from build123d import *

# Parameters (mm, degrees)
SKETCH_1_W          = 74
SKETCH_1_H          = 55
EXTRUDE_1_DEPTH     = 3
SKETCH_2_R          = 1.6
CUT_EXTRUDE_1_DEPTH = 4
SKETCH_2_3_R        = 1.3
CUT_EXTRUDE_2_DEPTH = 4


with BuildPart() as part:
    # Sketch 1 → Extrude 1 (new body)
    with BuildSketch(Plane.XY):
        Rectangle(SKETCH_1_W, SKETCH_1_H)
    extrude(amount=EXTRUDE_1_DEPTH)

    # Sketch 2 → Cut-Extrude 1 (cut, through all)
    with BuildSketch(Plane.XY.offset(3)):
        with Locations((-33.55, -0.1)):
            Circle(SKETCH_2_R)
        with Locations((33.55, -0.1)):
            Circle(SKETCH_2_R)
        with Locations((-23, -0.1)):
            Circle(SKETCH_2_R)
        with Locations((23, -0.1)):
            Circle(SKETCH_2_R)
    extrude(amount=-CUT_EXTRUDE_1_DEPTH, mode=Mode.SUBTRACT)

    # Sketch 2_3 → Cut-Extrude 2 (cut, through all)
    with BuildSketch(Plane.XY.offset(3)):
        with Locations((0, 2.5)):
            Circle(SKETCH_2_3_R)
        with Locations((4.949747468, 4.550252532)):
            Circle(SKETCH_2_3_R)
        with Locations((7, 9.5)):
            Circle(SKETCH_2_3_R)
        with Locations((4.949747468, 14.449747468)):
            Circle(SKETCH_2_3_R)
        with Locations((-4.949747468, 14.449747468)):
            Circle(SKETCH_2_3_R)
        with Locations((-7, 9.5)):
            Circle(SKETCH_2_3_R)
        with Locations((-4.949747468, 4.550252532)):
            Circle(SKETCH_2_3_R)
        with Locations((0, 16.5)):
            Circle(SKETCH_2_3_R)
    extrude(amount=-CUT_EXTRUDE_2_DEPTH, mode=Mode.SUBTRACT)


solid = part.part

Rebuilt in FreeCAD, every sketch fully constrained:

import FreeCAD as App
import Part
import Sketcher
Q = App.Units.Quantity


def add_polygon(sketch, points):
    """Adds a closed chain of lines whose ends are joined by coincident constraints."""
    first, n = sketch.GeometryCount, len(points)
    for a, b in zip(points, points[1:] + points[:1]):
        sketch.addGeometry(Part.LineSegment(App.Vector(*a, 0), App.Vector(*b, 0)), False)
    for i in range(n):
        sketch.addConstraint(Sketcher.Constraint("Coincident", first + i, 2, first + (i + 1) % n, 1))

doc = App.newDocument("Part")
body = doc.addObject("PartDesign::Body", "Body")

# Sketch on XY plane
sketch1 = body.newObject("Sketcher::SketchObject", "Sketch")
sketch1.AttachmentSupport = (doc.getObject("XY_Plane"), [""])
sketch1.MapMode = "FlatFace"
add_polygon(sketch1, [(-37, 28), (-37, -28), (37, -28), (37, 28)])  # lines 0-3
sketch1.addConstraint([
    Sketcher.Constraint("Vertical", 0),
    Sketcher.Constraint("Horizontal", 1),
    Sketcher.Constraint("Vertical", 2),
    Sketcher.Constraint("Horizontal", 3),
    Sketcher.Constraint("Symmetric", 0, 2, 2, 2, -1, 1),
    Sketcher.Constraint("DistanceX", 1, 1, 1, 2, Q("74 mm")),
    Sketcher.Constraint("DistanceY", 0, 2, 0, 1, Q("55 mm")),
])
pad1 = body.newObject("PartDesign::Pad", "Pad")
pad1.Profile = sketch1
pad1.Length = 3

# Sketch on XY plane
sketch2 = body.newObject("Sketcher::SketchObject", "Sketch001")
sketch2.AttachmentSupport = (doc.getObject("XY_Plane"), [""])
sketch2.MapMode = "FlatFace"
sketch2.AttachmentOffset = App.Placement(App.Vector(0, 0, 3), App.Rotation())
sketch2.addGeometry([
    Part.Circle(App.Vector(-33.5, -0.1, 0), App.Vector(0, 0, 1), 1.6),
    Part.Circle(App.Vector(33.5, -0.1, 0), App.Vector(0, 0, 1), 1.6),
    Part.Circle(App.Vector(-23, -0.1, 0), App.Vector(0, 0, 1), 1.6),
    Part.Circle(App.Vector(23, -0.1, 0), App.Vector(0, 0, 1), 1.6),
], False)
sketch2.addConstraint([
    Sketcher.Constraint("Equal", 0, 1),
    Sketcher.Constraint("Equal", 1, 2),
    Sketcher.Constraint("Equal", 2, 3),
    Sketcher.Constraint("Symmetric", 0, 3, 1, 3, -2),
    Sketcher.Constraint("Symmetric", 2, 3, 3, 3, -2),
    Sketcher.Constraint("Horizontal", 1, 3, 2, 3),
    Sketcher.Constraint("Diameter", 0, Q("3.2 mm")),
    Sketcher.Constraint("DistanceX", 2, 3, -1, 1, Q("23 mm")),
    Sketcher.Constraint("DistanceY", 0, 3, -1, 1, Q("0.1 mm")),
    Sketcher.Constraint("DistanceX", 0, 3, 1, 3, Q("67.1 mm")),
])
pocket1 = body.newObject("PartDesign::Pocket", "Pocket")
pocket1.Profile = sketch2
pocket1.Type = "ThroughAll"

# Sketch on XY plane
sketch3 = body.newObject("Sketcher::SketchObject", "Sketch002")
sketch3.AttachmentSupport = (doc.getObject("XY_Plane"), [""])
sketch3.MapMode = "FlatFace"
sketch3.AttachmentOffset = App.Placement(App.Vector(0, 0, 3), App.Rotation())
sketch3.addGeometry([
    Part.Circle(App.Vector(0, 2.5, 0), App.Vector(0, 0, 1), 1.3),  # 0
    Part.Circle(App.Vector(4.9, 4.6, 0), App.Vector(0, 0, 1), 1.3),  # 1
    Part.Circle(App.Vector(7, 9.5, 0), App.Vector(0, 0, 1), 1.3),  # 2
    Part.Circle(App.Vector(4.9, 14.4, 0), App.Vector(0, 0, 1), 1.3),  # 3
    Part.Circle(App.Vector(-4.9, 14.4, 0), App.Vector(0, 0, 1), 1.3),  # 4
    Part.Circle(App.Vector(-7, 9.5, 0), App.Vector(0, 0, 1), 1.3),  # 5
    Part.Circle(App.Vector(-4.9, 4.6, 0), App.Vector(0, 0, 1), 1.3),  # 6
    Part.Circle(App.Vector(0, 16.5, 0), App.Vector(0, 0, 1), 1.3),  # 7
], False)
sketch3.addConstraint([
    Sketcher.Constraint("Equal", 0, 1),
    Sketcher.Constraint("Equal", 1, 2),
    Sketcher.Constraint("Equal", 2, 3),
    Sketcher.Constraint("Equal", 3, 4),
    Sketcher.Constraint("Equal", 4, 5),
    Sketcher.Constraint("Equal", 5, 6),
    Sketcher.Constraint("Equal", 6, 7),
    Sketcher.Constraint("Symmetric", 3, 3, 4, 3, -2),
    Sketcher.Constraint("Symmetric", 2, 3, 5, 3, -2),
    Sketcher.Constraint("Symmetric", 1, 3, 6, 3, -2),
    Sketcher.Constraint("PointOnObject", 0, 3, -2),
    Sketcher.Constraint("PointOnObject", 7, 3, -2),
    Sketcher.Constraint("Vertical", 1, 3, 3, 3),
    Sketcher.Constraint("Diameter", 0, Q("2.6 mm")),
    Sketcher.Constraint("DistanceX", -1, 1, 2, 3, Q("7 mm")),
    Sketcher.Constraint("DistanceY", 0, 3, 2, 3, Q("7 mm")),
    Sketcher.Constraint("DistanceY", 2, 3, 7, 3, Q("7 mm")),
    Sketcher.Constraint("DistanceY", -1, 1, 0, 3, Q("2.5 mm")),
    Sketcher.Constraint("DistanceX", -1, 1, 1, 3, Q("4.949747 mm")),
    Sketcher.Constraint("DistanceY", -1, 1, 1, 3, Q("4.550253 mm")),
    Sketcher.Constraint("DistanceY", -1, 1, 3, 3, Q("14.449747 mm")),
])
pocket2 = body.newObject("PartDesign::Pocket", "Pocket001")
pocket2.Profile = sketch3
pocket2.Type = "ThroughAll"

doc.recompute()
